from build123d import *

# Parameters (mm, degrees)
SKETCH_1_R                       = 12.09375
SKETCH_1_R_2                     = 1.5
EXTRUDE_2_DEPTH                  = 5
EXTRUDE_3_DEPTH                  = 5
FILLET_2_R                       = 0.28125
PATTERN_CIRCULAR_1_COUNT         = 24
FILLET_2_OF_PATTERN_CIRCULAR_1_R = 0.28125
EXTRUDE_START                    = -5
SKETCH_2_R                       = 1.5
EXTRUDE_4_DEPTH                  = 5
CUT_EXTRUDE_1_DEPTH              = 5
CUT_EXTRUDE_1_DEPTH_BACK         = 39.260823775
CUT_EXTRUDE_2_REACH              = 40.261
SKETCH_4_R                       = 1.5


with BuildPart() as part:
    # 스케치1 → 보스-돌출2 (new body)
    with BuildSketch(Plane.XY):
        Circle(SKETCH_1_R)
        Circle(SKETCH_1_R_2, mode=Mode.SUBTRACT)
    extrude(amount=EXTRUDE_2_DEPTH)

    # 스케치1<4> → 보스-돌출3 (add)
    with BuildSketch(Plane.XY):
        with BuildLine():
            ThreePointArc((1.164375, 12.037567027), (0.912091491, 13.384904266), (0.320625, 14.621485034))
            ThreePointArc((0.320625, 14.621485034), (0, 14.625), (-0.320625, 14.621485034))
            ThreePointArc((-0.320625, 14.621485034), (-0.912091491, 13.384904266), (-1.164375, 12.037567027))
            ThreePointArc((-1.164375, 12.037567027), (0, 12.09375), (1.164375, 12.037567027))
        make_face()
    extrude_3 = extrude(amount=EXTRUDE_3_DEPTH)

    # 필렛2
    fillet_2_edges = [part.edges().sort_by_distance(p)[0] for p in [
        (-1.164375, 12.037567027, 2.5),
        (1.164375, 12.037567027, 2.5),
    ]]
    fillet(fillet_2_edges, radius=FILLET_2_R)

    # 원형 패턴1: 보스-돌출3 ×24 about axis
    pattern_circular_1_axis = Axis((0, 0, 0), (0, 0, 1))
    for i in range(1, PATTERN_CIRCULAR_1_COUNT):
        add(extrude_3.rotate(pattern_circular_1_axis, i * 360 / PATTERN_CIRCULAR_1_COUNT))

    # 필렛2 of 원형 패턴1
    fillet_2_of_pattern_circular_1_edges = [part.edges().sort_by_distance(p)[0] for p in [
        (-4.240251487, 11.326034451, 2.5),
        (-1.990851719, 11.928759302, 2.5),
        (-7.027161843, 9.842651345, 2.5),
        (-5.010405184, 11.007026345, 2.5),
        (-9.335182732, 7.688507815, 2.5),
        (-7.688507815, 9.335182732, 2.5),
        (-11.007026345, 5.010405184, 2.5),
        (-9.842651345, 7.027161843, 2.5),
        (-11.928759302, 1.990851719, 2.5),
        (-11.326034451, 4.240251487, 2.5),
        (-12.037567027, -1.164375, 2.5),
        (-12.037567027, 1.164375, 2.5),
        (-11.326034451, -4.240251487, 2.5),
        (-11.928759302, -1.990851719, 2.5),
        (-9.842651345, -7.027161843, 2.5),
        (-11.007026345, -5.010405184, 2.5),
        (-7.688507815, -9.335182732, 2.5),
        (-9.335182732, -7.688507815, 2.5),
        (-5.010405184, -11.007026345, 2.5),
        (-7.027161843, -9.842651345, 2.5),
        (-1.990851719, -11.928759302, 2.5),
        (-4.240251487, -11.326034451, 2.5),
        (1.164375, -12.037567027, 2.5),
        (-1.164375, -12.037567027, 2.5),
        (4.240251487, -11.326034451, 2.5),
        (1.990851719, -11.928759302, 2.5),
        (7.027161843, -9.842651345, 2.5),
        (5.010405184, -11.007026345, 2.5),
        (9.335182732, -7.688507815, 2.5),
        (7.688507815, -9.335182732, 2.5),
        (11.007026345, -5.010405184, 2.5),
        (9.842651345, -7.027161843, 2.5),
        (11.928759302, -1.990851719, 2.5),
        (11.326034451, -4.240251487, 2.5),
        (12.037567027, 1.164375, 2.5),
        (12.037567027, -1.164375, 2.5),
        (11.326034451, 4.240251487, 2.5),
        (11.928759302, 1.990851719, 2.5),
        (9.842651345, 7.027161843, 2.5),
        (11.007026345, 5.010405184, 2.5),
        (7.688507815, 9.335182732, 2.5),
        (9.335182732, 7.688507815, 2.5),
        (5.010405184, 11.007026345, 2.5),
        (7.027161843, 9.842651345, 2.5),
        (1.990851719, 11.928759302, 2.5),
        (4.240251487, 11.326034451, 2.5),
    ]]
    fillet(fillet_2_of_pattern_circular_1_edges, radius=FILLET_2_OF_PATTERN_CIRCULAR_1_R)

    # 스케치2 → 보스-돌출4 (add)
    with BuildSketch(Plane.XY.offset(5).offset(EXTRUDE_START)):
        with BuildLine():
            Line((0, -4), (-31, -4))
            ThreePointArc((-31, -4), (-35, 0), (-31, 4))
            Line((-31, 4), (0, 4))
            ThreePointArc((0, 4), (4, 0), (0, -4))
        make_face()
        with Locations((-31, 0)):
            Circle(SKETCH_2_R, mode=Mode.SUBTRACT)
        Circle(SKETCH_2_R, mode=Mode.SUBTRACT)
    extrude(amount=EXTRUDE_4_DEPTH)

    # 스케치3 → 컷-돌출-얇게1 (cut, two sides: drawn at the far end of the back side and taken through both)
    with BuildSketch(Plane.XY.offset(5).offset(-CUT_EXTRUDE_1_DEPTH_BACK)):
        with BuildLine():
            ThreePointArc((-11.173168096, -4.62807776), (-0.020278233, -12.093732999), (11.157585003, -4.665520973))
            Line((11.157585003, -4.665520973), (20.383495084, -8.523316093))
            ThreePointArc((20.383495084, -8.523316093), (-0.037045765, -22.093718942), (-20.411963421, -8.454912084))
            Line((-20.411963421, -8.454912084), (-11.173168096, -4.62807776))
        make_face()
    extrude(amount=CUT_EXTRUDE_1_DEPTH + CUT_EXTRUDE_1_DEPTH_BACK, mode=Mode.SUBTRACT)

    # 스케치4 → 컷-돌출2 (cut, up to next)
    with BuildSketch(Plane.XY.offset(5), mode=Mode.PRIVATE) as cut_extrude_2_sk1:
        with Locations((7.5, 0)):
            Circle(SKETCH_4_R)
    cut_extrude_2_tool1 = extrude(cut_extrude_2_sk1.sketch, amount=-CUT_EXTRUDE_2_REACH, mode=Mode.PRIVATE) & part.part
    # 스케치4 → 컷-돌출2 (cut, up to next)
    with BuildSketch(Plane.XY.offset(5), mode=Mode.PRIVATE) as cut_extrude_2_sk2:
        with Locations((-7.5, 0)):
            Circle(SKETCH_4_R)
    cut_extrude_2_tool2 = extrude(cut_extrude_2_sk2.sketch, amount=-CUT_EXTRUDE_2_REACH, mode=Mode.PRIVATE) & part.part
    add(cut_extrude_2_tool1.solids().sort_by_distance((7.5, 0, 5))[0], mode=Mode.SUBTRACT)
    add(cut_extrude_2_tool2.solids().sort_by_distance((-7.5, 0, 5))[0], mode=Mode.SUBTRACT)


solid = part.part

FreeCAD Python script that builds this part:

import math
import FreeCAD as App
import Part
import Sketcher
from FreeCAD import Vector
Q = App.Units.Quantity


def edges_at(feature, points):
    """Names of the edges that pass closest to the given points."""
    edges = feature.Shape.Edges
    near = lambda p: min(range(len(edges)), key=lambda i: edges[i].distToShape(Part.Vertex(*p))[0])
    return sorted({f"Edge{near(p) + 1}" for p in points})

doc = App.newDocument("Part")
body = doc.addObject("PartDesign::Body", "Body")

# Sketch on XY plane
sketch1 = body.newObject("Sketcher::SketchObject", "Sketch")
sketch1.AttachmentSupport = (doc.getObject("XY_Plane"), [""])
sketch1.MapMode = "FlatFace"
sketch1.addGeometry(Part.Circle(Vector(0, 0, 0), Vector(0, 0, 1), 12.09375), False)
sketch1.addGeometry(Part.Circle(Vector(0, 0, 0), Vector(0, 0, 1), 1.5), False)
sketch1.addConstraint(Sketcher.Constraint("Coincident", 0, 3, -1, 1))
sketch1.addConstraint(Sketcher.Constraint("Coincident", 1, 3, -1, 1))
sketch1.addConstraint(Sketcher.Constraint("Diameter", 1, Q("3 mm")))
sketch1.addConstraint(Sketcher.Constraint("Diameter", 0, Q("24.1875 mm")))
pad1 = body.newObject("PartDesign::Pad", "Pad")
pad1.Profile = sketch1
pad1.Length = 5

# Sketch on XY plane
sketch2 = body.newObject("Sketcher::SketchObject", "Sketch001")
sketch2.AttachmentSupport = (doc.getObject("XY_Plane"), [""])
sketch2.MapMode = "FlatFace"
sketch2.addGeometry(Part.ArcOfCircle(Part.Circle(Vector(-4.093818, 11.75028, 0), Vector(0, 0, 1), 5.266035), math.radians(3.127312), math.radians(33.040447)), False)
sketch2.addGeometry(Part.ArcOfCircle(Part.Circle(Vector(0, 0.000001, 0), Vector(0, 0, 1), 14.624999), math.radians(88.743799), math.radians(91.256201)), False)
sketch2.addGeometry(Part.ArcOfCircle(Part.Circle(Vector(4.093818, 11.75028, 0), Vector(0, 0, 1), 5.266035), math.radians(146.959553), math.radians(176.872688)), False)
sketch2.addGeometry(Part.ArcOfCircle(Part.Circle(Vector(0, 0, 0), Vector(0, 0, 1), 12.09375), math.radians(84.475057), math.radians(95.524943)), False)
sketch2.addConstraint(Sketcher.Constraint("Coincident", 0, 2, 1, 1))
sketch2.addConstraint(Sketcher.Constraint("Coincident", 1, 2, 2, 1))
sketch2.addConstraint(Sketcher.Constraint("Coincident", 2, 2, 3, 2))
sketch2.addConstraint(Sketcher.Constraint("Coincident", 3, 1, 0, 1))
sketch2.addConstraint(Sketcher.Constraint("Coincident", 1, 3, -1, 1))
sketch2.addConstraint(Sketcher.Constraint("Coincident", 3, 3, -1, 1))
sketch2.addConstraint(Sketcher.Constraint("Equal", 0, 2))
sketch2.addConstraint(Sketcher.Constraint("Symmetric", 0, 3, 2, 3, -2))
sketch2.addConstraint(Sketcher.Constraint("Radius", 1, Q("14.624999 mm")))
sketch2.addConstraint(Sketcher.Constraint("Radius", 3, Q("12.09375 mm")))
sketch2.addConstraint(Sketcher.Constraint("Radius", 0, Q("5.266035 mm")))
sketch2.addConstraint(Sketcher.Constraint("DistanceX", 2, 2, 0, 2, Q("1.485 mm")))
sketch2.addConstraint(Sketcher.Constraint("DistanceX", 0, 3, -1, 1, Q("4.093818 mm")))
pad2 = body.newObject("PartDesign::Pad", "Pad001")
pad2.Profile = sketch2
pad2.Length = 5
doc.recompute()

fillet = body.newObject("PartDesign::Fillet", "Fillet")
fillet.Base = (pad2, edges_at(pad2, [(-1.164, 12.038, 2.5), (1.164, 12.038, 2.5)]))
fillet.Radius = 0.28125
doc.recompute()

polarpattern = body.newObject("PartDesign::PolarPattern", "PolarPattern")
polarpattern.Originals = [pad2]
polarpattern.Axis = (doc.getObject("Z_Axis"), [""])
polarpattern.Angle = 360
polarpattern.Occurrences = 24
body.Tip = polarpattern
doc.recompute()

fillet2 = body.newObject("PartDesign::Fillet", "Fillet001")
fillet2.Base = (polarpattern, edges_at(polarpattern, [
    (-4.24, 11.326, 2.5),
    (-1.991, 11.929, 2.5),
    (-7.027, 9.843, 2.5),
    (-5.01, 11.007, 2.5),
    (-9.335, 7.689, 2.5),
    (-7.689, 9.335, 2.5),
    (-11.007, 5.01, 2.5),
    (-9.843, 7.027, 2.5),
    (-11.929, 1.991, 2.5),
    (-11.326, 4.24, 2.5),
    (-12.038, -1.164, 2.5),
    (-12.038, 1.164, 2.5),
    (-11.326, -4.24, 2.5),
    (-11.929, -1.991, 2.5),
    (-9.843, -7.027, 2.5),
    (-11.007, -5.01, 2.5),
    (-7.689, -9.335, 2.5),
    (-9.335, -7.689, 2.5),
    (-5.01, -11.007, 2.5),
    (-7.027, -9.843, 2.5),
    (-1.991, -11.929, 2.5),
    (-4.24, -11.326, 2.5),
    (1.164, -12.038, 2.5),
    (-1.164, -12.038, 2.5),
    (4.24, -11.326, 2.5),
    (1.991, -11.929, 2.5),
    (7.027, -9.843, 2.5),
    (5.01, -11.007, 2.5),
    (9.335, -7.689, 2.5),
    (7.689, -9.335, 2.5),
    (11.007, -5.01, 2.5),
    (9.843, -7.027, 2.5),
    (11.929, -1.991, 2.5),
    (11.326, -4.24, 2.5),
    (12.038, 1.164, 2.5),
    (12.038, -1.164, 2.5),
    (11.326, 4.24, 2.5),
    (11.929, 1.991, 2.5),
    (9.843, 7.027, 2.5),
    (11.007, 5.01, 2.5),
    (7.689, 9.335, 2.5),
    (9.335, 7.689, 2.5),
    (5.01, 11.007, 2.5),
    (7.027, 9.843, 2.5),
    (1.991, 11.929, 2.5),
    (4.24, 11.326, 2.5),
]))
fillet2.Radius = 0.28125

# Sketch on XY plane
sketch3 = body.newObject("Sketcher::SketchObject", "Sketch002")
sketch3.AttachmentSupport = (doc.getObject("XY_Plane"), [""])
sketch3.MapMode = "FlatFace"
sketch3.addGeometry(Part.LineSegment(Vector(-31, -4, 0), Vector(0, -4, 0)), False)
sketch3.addGeometry(Part.ArcOfCircle(Part.Circle(Vector(0, 0, 0), Vector(0, 0, 1), 4), math.radians(-90), math.radians(90)), False)
sketch3.addGeometry(Part.LineSegment(Vector(0, 4, 0), Vector(-31, 4, 0)), False)
sketch3.addGeometry(Part.ArcOfCircle(Part.Circle(Vector(-31, 0, 0), Vector(0, 0, 1), 4), math.radians(90), math.radians(270)), False)
sketch3.addGeometry(Part.Circle(Vector(0, 0, 0), Vector(0, 0, 1), 1.5), False)
sketch3.addGeometry(Part.Circle(Vector(-31, 0, 0), Vector(0, 0, 1), 1.5), False)
sketch3.addConstraint(Sketcher.Constraint("Tangent", 0, 2, 1, 1))
sketch3.addConstraint(Sketcher.Constraint("Tangent", 1, 2, 2, 1))
sketch3.addConstraint(Sketcher.Constraint("Tangent", 2, 2, 3, 1))
sketch3.addConstraint(Sketcher.Constraint("Tangent", 3, 2, 0, 1))
sketch3.addConstraint(Sketcher.Constraint("Horizontal", 0))
sketch3.addConstraint(Sketcher.Constraint("Horizontal", 2))
sketch3.addConstraint(Sketcher.Constraint("Coincident", 1, 3, -1, 1))
sketch3.addConstraint(Sketcher.Constraint("Coincident", 4, 3, -1, 1))
sketch3.addConstraint(Sketcher.Constraint("Coincident", 5, 3, 3, 3))
sketch3.addConstraint(Sketcher.Constraint("Equal", 4, 5))
sketch3.addConstraint(Sketcher.Constraint("Diameter", 4, Q("3 mm")))
sketch3.addConstraint(Sketcher.Constraint("Radius", 1, Q("4 mm")))
sketch3.addConstraint(Sketcher.Constraint("DistanceX", 0, 1, 0, 2, Q("31 mm")))
pad3 = body.newObject("PartDesign::Pad", "Pad002")
pad3.Profile = sketch3
pad3.Length = 5

# Sketch on XY plane
sketch4 = body.newObject("Sketcher::SketchObject", "Sketch003")
sketch4.AttachmentSupport = (doc.getObject("XY_Plane"), [""])
sketch4.MapMode = "FlatFace"
sketch4.AttachmentOffset = App.Placement(Vector(0, 0, 5), App.Rotation())
sketch4.addGeometry(Part.ArcOfCircle(Part.Circle(Vector(0, 0, 0), Vector(0, 0, 1), 12.09375), math.radians(-157.5), math.radians(-22.692142)), False)
sketch4.addGeometry(Part.LineSegment(Vector(-11.173168, -4.628078, 0), Vector(-20.411963, -8.454912, 0)), False)
sketch4.addGeometry(Part.ArcOfCircle(Part.Circle(Vector(0, 0, 0), Vector(0, 0, 1), 22.09375), math.radians(-157.5), math.radians(-22.692142)), False)
sketch4.addGeometry(Part.LineSegment(Vector(20.383495, -8.523316, 0), Vector(11.157585, -4.665521, 0)), False)
sketch4.addConstraint(Sketcher.Constraint("Coincident", 0, 1, 1, 1))
sketch4.addConstraint(Sketcher.Constraint("Coincident", 1, 2, 2, 1))
sketch4.addConstraint(Sketcher.Constraint("Coincident", 2, 2, 3, 1))
sketch4.addConstraint(Sketcher.Constraint("Coincident", 3, 2, 0, 2))
sketch4.addConstraint(Sketcher.Constraint("Coincident", 0, 3, -1, 1))
sketch4.addConstraint(Sketcher.Constraint("Coincident", 2, 3, -1, 1))
sketch4.addConstraint(Sketcher.Constraint("Distance", 1, Q("10 mm")))
sketch4.addConstraint(Sketcher.Constraint("Angle", 1, Q("-157.5 deg")))
sketch4.addConstraint(Sketcher.Constraint("Radius", 0, Q("12.09375 mm")))
sketch4.addConstraint(Sketcher.Constraint("DistanceX", 0, 1, -1, 1, Q("11.173168 mm")))
sketch4.addConstraint(Sketcher.Constraint("DistanceY", 3, 2, -1, 1, Q("4.665521 mm")))
sketch4.addConstraint(Sketcher.Constraint("DistanceY", 2, 2, 0, 1, Q("3.895238 mm")))
pocket1 = body.newObject("PartDesign::Pocket", "Pocket")
pocket1.Profile = sketch4
pocket1.Type = "ThroughAll"
pocket1.Midplane = True

# Sketch on XY plane
sketch5 = body.newObject("Sketcher::SketchObject", "Sketch004")
sketch5.AttachmentSupport = (doc.getObject("XY_Plane"), [""])
sketch5.MapMode = "FlatFace"
sketch5.AttachmentOffset = App.Placement(Vector(0, 0, 5), App.Rotation())
sketch5.addGeometry(Part.Circle(Vector(7.5, 0, 0), Vector(0, 0, 1), 1.5), False)
sketch5.addConstraint(Sketcher.Constraint("PointOnObject", 0, 3, -1))
sketch5.addConstraint(Sketcher.Constraint("Diameter", 0, Q("3 mm")))
sketch5.addConstraint(Sketcher.Constraint("DistanceX", -1, 1, 0, 3, Q("7.5 mm")))
pocket2 = body.newObject("PartDesign::Pocket", "Pocket001")
pocket2.Profile = sketch5
pocket2.Type = "UpToFirst"

# Sketch on XY plane
sketch6 = body.newObject("Sketcher::SketchObject", "Sketch005")
sketch6.AttachmentSupport = (doc.getObject("XY_Plane"), [""])
sketch6.MapMode = "FlatFace"
sketch6.AttachmentOffset = App.Placement(Vector(0, 0, 5), App.Rotation())
sketch6.addGeometry(Part.Circle(Vector(-7.5, 0, 0), Vector(0, 0, 1), 1.5), False)
sketch6.addConstraint(Sketcher.Constraint("PointOnObject", 0, 3, -1))
sketch6.addConstraint(Sketcher.Constraint("Diameter", 0, Q("3 mm")))
sketch6.addConstraint(Sketcher.Constraint("DistanceX", 0, 3, -1, 1, Q("7.5 mm")))
pocket3 = body.newObject("PartDesign::Pocket", "Pocket002")
pocket3.Profile = sketch6
pocket3.Type = "UpToFirst"

doc.recompute()
